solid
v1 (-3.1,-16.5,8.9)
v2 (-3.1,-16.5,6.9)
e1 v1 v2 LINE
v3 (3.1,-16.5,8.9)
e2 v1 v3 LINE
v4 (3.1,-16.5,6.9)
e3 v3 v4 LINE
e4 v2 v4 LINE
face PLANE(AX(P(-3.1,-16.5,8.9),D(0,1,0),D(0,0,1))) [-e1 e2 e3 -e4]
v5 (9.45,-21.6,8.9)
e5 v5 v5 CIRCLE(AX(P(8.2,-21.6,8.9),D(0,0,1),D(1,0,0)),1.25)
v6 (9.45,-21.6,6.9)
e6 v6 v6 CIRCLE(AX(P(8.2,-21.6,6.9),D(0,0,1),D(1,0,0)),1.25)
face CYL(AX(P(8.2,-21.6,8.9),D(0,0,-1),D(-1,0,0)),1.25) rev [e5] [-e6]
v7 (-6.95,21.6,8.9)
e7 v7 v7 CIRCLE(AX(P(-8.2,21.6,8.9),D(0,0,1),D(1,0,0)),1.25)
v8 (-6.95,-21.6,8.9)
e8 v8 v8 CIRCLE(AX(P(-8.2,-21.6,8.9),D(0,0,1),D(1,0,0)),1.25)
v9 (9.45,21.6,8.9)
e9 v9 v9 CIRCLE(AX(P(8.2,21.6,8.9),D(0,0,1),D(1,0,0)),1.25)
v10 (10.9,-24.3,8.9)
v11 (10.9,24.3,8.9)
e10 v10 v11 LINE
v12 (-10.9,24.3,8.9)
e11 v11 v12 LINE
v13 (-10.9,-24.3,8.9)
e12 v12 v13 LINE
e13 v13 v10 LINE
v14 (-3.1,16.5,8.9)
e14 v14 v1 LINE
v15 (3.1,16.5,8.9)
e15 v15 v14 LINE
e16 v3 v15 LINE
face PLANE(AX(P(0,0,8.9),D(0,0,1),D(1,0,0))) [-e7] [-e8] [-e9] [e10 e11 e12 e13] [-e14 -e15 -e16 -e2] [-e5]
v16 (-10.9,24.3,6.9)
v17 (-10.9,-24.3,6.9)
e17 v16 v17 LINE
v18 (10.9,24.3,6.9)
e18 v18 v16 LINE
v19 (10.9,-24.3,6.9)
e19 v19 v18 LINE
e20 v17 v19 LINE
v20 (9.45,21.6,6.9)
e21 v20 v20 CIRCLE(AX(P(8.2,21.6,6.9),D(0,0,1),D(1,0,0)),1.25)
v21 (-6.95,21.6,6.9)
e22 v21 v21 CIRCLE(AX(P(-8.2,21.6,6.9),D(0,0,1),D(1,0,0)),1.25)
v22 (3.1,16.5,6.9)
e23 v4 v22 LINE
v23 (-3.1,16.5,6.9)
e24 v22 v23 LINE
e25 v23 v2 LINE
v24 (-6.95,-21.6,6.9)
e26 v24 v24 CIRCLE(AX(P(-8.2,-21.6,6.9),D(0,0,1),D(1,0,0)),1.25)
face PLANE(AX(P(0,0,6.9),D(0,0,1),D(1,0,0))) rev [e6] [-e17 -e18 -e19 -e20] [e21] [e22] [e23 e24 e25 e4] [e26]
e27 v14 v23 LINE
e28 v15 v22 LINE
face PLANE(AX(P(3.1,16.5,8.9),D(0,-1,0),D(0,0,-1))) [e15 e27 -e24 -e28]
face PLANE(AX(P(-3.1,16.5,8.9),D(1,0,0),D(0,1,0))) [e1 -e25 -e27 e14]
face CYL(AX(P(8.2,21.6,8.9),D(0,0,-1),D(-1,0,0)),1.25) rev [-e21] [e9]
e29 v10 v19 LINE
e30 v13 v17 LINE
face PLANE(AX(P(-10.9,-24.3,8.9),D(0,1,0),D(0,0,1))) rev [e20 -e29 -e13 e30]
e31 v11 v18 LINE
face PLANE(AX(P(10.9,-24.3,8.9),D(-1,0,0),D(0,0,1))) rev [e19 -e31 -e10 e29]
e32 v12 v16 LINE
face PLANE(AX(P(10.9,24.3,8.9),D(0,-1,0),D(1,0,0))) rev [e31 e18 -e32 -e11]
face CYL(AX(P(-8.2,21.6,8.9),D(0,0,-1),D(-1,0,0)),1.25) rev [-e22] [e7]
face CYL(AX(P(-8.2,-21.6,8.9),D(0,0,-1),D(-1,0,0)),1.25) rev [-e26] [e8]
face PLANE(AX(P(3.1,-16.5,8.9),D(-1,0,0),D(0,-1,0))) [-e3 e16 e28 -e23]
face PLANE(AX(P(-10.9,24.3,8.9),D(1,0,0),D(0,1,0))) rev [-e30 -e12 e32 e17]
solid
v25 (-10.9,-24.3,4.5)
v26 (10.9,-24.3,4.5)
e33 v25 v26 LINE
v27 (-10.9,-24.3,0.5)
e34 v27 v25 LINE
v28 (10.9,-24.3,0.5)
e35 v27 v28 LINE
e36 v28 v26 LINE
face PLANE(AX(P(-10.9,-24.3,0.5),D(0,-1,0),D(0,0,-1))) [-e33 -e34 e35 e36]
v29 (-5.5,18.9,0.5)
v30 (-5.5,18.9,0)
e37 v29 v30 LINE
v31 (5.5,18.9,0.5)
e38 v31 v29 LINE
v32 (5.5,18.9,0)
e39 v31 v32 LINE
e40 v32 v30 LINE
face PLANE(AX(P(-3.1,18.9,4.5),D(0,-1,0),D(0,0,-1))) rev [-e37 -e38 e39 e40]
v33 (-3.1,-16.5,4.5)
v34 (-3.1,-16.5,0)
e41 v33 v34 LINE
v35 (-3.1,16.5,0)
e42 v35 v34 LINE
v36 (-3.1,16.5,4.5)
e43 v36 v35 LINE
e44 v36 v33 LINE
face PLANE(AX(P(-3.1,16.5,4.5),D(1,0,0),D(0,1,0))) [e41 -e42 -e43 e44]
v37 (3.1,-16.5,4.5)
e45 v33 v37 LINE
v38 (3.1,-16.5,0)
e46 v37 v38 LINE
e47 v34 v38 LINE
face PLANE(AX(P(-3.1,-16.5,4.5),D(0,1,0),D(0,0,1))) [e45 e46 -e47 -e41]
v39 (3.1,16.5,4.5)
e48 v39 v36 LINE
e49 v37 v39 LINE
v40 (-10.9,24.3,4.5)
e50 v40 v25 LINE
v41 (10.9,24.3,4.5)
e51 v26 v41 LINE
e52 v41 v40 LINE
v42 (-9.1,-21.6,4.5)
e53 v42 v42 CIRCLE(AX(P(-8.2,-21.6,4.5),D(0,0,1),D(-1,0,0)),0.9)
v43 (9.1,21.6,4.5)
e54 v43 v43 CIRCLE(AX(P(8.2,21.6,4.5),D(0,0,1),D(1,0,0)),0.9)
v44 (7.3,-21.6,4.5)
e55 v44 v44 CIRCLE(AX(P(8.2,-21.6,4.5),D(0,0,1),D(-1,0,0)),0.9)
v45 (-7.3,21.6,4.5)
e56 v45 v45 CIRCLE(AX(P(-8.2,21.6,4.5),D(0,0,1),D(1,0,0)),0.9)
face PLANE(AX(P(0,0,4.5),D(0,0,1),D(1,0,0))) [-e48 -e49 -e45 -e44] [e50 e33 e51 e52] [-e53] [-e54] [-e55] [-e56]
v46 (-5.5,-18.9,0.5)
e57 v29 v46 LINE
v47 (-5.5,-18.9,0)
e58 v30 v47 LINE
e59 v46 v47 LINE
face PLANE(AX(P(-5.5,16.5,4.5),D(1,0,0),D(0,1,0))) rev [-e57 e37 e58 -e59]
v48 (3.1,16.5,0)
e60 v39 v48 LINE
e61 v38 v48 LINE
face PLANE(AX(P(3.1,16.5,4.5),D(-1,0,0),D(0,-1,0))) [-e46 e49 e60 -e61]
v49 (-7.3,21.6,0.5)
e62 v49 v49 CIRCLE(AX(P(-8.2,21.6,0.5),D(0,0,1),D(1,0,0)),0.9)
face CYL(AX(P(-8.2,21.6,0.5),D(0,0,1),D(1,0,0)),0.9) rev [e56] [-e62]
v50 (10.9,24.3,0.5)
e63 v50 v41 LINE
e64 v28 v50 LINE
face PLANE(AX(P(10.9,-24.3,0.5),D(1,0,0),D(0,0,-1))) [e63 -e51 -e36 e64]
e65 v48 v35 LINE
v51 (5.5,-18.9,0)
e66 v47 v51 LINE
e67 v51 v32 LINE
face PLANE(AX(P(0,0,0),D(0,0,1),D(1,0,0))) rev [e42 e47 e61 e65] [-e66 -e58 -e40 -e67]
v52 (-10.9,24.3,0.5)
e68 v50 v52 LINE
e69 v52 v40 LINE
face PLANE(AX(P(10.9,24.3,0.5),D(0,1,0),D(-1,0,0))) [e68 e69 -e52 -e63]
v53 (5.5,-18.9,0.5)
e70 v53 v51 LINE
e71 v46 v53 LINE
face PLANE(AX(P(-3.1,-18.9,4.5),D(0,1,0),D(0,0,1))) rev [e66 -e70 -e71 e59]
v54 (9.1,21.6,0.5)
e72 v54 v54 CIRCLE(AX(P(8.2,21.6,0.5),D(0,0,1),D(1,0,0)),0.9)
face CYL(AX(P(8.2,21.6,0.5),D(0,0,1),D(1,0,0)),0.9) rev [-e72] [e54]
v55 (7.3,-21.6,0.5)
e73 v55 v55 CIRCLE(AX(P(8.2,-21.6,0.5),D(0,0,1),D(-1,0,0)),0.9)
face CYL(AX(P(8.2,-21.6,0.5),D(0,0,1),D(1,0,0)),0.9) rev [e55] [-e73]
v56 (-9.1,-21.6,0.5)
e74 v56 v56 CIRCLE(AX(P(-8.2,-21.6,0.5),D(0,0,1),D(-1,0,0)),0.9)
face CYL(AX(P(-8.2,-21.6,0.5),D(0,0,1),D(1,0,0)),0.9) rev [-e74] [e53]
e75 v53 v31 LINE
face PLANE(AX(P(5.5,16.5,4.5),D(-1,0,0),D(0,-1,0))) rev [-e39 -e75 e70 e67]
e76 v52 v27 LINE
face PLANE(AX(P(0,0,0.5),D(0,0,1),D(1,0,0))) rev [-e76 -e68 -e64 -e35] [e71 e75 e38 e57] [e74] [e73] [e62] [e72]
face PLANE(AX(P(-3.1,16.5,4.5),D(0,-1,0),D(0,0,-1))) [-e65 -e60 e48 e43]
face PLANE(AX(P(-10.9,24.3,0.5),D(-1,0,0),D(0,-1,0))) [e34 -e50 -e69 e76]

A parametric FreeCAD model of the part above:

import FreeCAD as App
import Part
import Sketcher

V = App.Vector


def faces_at(feature, points):
    """Names of the faces that lie closest to the given points."""
    faces = feature.Shape.Faces
    near = lambda p: min(range(len(faces)), key=lambda i: faces[i].distToShape(Part.Vertex(*p))[0])
    return sorted({f"Face{near(p) + 1}" for p in points})


def add_polygon(sketch, points):
    """Adds a closed chain of lines whose ends are joined by coincident constraints."""
    first, n = sketch.GeometryCount, len(points)
    for a, b in zip(points, points[1:] + points[:1]):
        sketch.addGeometry(Part.LineSegment(App.Vector(*a, 0), App.Vector(*b, 0)), False)
    for i in range(n):
        sketch.addConstraint(Sketcher.Constraint("Coincident", first + i, 2, first + (i + 1) % n, 1))

doc = App.newDocument("Part")
params = doc.addObject("Spreadsheet::Sheet", "Params")
for row, (alias, value) in enumerate([
    ("sketch1_height", "33 mm"),
    ("sketch1_width", "6.2 mm"),
    ("pad1_length", "4.5 mm"),
    ("thickness_wall", "2.4 mm"),
    ("sketch2_diameter", "1.8 mm"),
    ("sketch2_width", "11 mm"),
    ("sketch2_width2", "21.8 mm"),
    ("sketch2_height", "48.6 mm"),
    ("sketch2_height2", "37.8 mm"),
    ("pad2_length", "4 mm"),
    ("sketch3_diameter", "2.5 mm"),
    ("sketch3_height", "33 mm"),
    ("sketch3_width", "21.8 mm"),
    ("sketch3_width2", "6.2 mm"),
    ("sketch3_height2", "48.6 mm"),
    ("pad3_length", "2 mm"),
], start=1):
    params.set(f"A{row}", alias)
    params.set(f"B{row}", "=" + value)
    params.setAlias(f"B{row}", alias)

body = doc.addObject("PartDesign::Body", "Body")

# Sketch on XY plane
sketch1 = body.newObject("Sketcher::SketchObject", "Sketch")
sketch1.AttachmentSupport = (doc.getObject("XY_Plane"), [""])
sketch1.MapMode = "FlatFace"
add_polygon(sketch1, [(-3, 16), (-3, -16), (3, -16), (3, 16)])  # lines 0-3
sketch1.addConstraint([
    Sketcher.Constraint("Vertical", 0),
    Sketcher.Constraint("Horizontal", 1),
    Sketcher.Constraint("Vertical", 2),
    Sketcher.Constraint("Horizontal", 3),
    Sketcher.Constraint("Symmetric", 0, 2, 2, 2, -1, 1),
    Sketcher.Constraint("DistanceY", 0, 2, 0, 1, 33.0),
    Sketcher.Constraint("DistanceX", 1, 1, 1, 2, 6.2),
])
sketch1.setExpression("Constraints[9]", "Params.sketch1_height")
sketch1.setExpression("Constraints[10]", "Params.sketch1_width")
pad1 = body.newObject("PartDesign::Pad", "Pad")
pad1.Profile = sketch1
pad1.setExpression("Length", "Params.pad1_length")
doc.recompute()

thickness = body.newObject("PartDesign::Thickness", "Thickness")
thickness.Base = (pad1, faces_at(pad1, [(0, 0, 0), (0, 0, 4.5)]))
thickness.setExpression("Value", "Params.thickness_wall")
thickness.Reversed = False
thickness.Join = "Intersection"

# Sketch on XY plane
sketch2 = body.newObject("Sketcher::SketchObject", "Sketch001")
sketch2.AttachmentSupport = (doc.getObject("XY_Plane"), [""])
sketch2.MapMode = "FlatFace"
sketch2.AttachmentOffset = App.Placement(V(0, 0, 4.5), App.Rotation())
add_polygon(sketch2, [(-10.9, 24.3), (-10.9, -24.3), (10.9, -24.3), (10.9, 24.3)])  # lines 0-3
sketch2.addGeometry(Part.Circle(V(-8.2, -21.6, 0), V(0, 0, 1), 0.9), False)  # 4
sketch2.addGeometry(Part.Circle(V(8.2, -21.6, 0), V(0, 0, 1), 0.9), False)  # 5
add_polygon(sketch2, [(5.5, -18.9), (-5.5, -18.9), (-5.5, 18.9), (5.5, 18.9)])  # lines 6-9
sketch2.addGeometry(Part.Circle(V(-8.2, 21.6, 0), V(0, 0, 1), 0.9), False)  # 10
sketch2.addGeometry(Part.Circle(V(8.2, 21.6, 0), V(0, 0, 1), 0.9), False)  # 11
sketch2.addConstraint([
    Sketcher.Constraint("Vertical", 0),
    Sketcher.Constraint("Horizontal", 1),
    Sketcher.Constraint("Vertical", 2),
    Sketcher.Constraint("Horizontal", 3),
    Sketcher.Constraint("Horizontal", 6),
    Sketcher.Constraint("Vertical", 7),
    Sketcher.Constraint("Horizontal", 8),
    Sketcher.Constraint("Vertical", 9),
    Sketcher.Constraint("Equal", 4, 5),
    Sketcher.Constraint("Equal", 5, 10),
    Sketcher.Constraint("Equal", 10, 11),
    Sketcher.Constraint("Symmetric", 5, 3, 10, 3, -1, 1),
    Sketcher.Constraint("Symmetric", 4, 3, 11, 3, -1, 1),
    Sketcher.Constraint("Symmetric", 0, 2, 2, 2, -1, 1),
    Sketcher.Constraint("Symmetric", 6, 2, 8, 2, -1, 1),
    Sketcher.Constraint("Symmetric", 4, 3, 5, 3, -2),
    Sketcher.Constraint("Diameter", 4, 1.8),
    Sketcher.Constraint("DistanceX", 6, 2, 6, 1, 11.0),
    Sketcher.Constraint("DistanceX", 1, 1, 1, 2, 21.8),
    Sketcher.Constraint("DistanceY", 0, 2, 0, 1, 48.6),
    Sketcher.Constraint("DistanceY", 7, 1, 7, 2, 37.8),
    Sketcher.Constraint("DistanceX", 4, 3, -1, 1, 8.2),
    Sketcher.Constraint("DistanceY", 4, 3, -1, 1, 21.6),
])
sketch2.setExpression("Constraints[24]", "Params.sketch2_diameter")
sketch2.setExpression("Constraints[25]", "Params.sketch2_width")
sketch2.setExpression("Constraints[26]", "Params.sketch2_width2")
sketch2.setExpression("Constraints[27]", "Params.sketch2_height")
sketch2.setExpression("Constraints[28]", "Params.sketch2_height2")
pad2 = body.newObject("PartDesign::Pad", "Pad001")
pad2.Profile = sketch2
pad2.setExpression("Length", "Params.pad2_length")
pad2.Reversed = True
body2 = doc.addObject("PartDesign::Body", "Body001")

# Sketch on XY plane
sketch3 = body2.newObject("Sketcher::SketchObject", "Sketch002")
sketch3.AttachmentSupport = (doc.getObject("XY_Plane001"), [""])
sketch3.MapMode = "FlatFace"
sketch3.AttachmentOffset = App.Placement(V(0, 0, 6.9), App.Rotation())
add_polygon(sketch3, [(-10.9, 24.3), (-10.9, -24.3), (10.9, -24.3), (10.9, 24.3)])  # lines 0-3
sketch3.addGeometry(Part.Circle(V(-8.2, -21.6, 0), V(0, 0, 1), 1.2), False)  # 4
sketch3.addGeometry(Part.Circle(V(8.2, -21.6, 0), V(0, 0, 1), 1.2), False)  # 5
sketch3.addGeometry(Part.Circle(V(-8.2, 21.6, 0), V(0, 0, 1), 1.2), False)  # 6
add_polygon(sketch3, [(3.1, -16.5), (-3.1, -16.5), (-3.1, 16.5), (3.1, 16.5)])  # lines 7-10
sketch3.addGeometry(Part.Circle(V(8.2, 21.6, 0), V(0, 0, 1), 1.2), False)  # 11
sketch3.addConstraint([
    Sketcher.Constraint("Vertical", 0),
    Sketcher.Constraint("Horizontal", 1),
    Sketcher.Constraint("Vertical", 2),
    Sketcher.Constraint("Horizontal", 3),
    Sketcher.Constraint("Horizontal", 7),
    Sketcher.Constraint("Vertical", 8),
    Sketcher.Constraint("Horizontal", 9),
    Sketcher.Constraint("Vertical", 10),
    Sketcher.Constraint("Equal", 4, 5),
    Sketcher.Constraint("Equal", 5, 6),
    Sketcher.Constraint("Equal", 6, 11),
    Sketcher.Constraint("Symmetric", 5, 3, 6, 3, -1, 1),
    Sketcher.Constraint("Symmetric", 4, 3, 11, 3, -1, 1),
    Sketcher.Constraint("Symmetric", 0, 2, 2, 2, -1, 1),
    Sketcher.Constraint("Symmetric", 7, 2, 9, 2, -1, 1),
    Sketcher.Constraint("Symmetric", 4, 3, 5, 3, -2),
    Sketcher.Constraint("Diameter", 4, 2.5),
    Sketcher.Constraint("DistanceY", 8, 1, 8, 2, 33.0),
    Sketcher.Constraint("DistanceX", 1, 1, 1, 2, 21.8),
    Sketcher.Constraint("DistanceX", 7, 2, 7, 1, 6.2),
    Sketcher.Constraint("DistanceY", 0, 2, 0, 1, 48.6),
    Sketcher.Constraint("DistanceX", 4, 3, -1, 1, 8.2),
    Sketcher.Constraint("DistanceY", 4, 3, -1, 1, 21.6),
])
sketch3.setExpression("Constraints[24]", "Params.sketch3_diameter")
sketch3.setExpression("Constraints[25]", "Params.sketch3_height")
sketch3.setExpression("Constraints[26]", "Params.sketch3_width")
sketch3.setExpression("Constraints[27]", "Params.sketch3_width2")
sketch3.setExpression("Constraints[28]", "Params.sketch3_height2")
pad3 = body2.newObject("PartDesign::Pad", "Pad002")
pad3.Profile = sketch3
pad3.setExpression("Length", "Params.pad3_length")

doc.recompute()
